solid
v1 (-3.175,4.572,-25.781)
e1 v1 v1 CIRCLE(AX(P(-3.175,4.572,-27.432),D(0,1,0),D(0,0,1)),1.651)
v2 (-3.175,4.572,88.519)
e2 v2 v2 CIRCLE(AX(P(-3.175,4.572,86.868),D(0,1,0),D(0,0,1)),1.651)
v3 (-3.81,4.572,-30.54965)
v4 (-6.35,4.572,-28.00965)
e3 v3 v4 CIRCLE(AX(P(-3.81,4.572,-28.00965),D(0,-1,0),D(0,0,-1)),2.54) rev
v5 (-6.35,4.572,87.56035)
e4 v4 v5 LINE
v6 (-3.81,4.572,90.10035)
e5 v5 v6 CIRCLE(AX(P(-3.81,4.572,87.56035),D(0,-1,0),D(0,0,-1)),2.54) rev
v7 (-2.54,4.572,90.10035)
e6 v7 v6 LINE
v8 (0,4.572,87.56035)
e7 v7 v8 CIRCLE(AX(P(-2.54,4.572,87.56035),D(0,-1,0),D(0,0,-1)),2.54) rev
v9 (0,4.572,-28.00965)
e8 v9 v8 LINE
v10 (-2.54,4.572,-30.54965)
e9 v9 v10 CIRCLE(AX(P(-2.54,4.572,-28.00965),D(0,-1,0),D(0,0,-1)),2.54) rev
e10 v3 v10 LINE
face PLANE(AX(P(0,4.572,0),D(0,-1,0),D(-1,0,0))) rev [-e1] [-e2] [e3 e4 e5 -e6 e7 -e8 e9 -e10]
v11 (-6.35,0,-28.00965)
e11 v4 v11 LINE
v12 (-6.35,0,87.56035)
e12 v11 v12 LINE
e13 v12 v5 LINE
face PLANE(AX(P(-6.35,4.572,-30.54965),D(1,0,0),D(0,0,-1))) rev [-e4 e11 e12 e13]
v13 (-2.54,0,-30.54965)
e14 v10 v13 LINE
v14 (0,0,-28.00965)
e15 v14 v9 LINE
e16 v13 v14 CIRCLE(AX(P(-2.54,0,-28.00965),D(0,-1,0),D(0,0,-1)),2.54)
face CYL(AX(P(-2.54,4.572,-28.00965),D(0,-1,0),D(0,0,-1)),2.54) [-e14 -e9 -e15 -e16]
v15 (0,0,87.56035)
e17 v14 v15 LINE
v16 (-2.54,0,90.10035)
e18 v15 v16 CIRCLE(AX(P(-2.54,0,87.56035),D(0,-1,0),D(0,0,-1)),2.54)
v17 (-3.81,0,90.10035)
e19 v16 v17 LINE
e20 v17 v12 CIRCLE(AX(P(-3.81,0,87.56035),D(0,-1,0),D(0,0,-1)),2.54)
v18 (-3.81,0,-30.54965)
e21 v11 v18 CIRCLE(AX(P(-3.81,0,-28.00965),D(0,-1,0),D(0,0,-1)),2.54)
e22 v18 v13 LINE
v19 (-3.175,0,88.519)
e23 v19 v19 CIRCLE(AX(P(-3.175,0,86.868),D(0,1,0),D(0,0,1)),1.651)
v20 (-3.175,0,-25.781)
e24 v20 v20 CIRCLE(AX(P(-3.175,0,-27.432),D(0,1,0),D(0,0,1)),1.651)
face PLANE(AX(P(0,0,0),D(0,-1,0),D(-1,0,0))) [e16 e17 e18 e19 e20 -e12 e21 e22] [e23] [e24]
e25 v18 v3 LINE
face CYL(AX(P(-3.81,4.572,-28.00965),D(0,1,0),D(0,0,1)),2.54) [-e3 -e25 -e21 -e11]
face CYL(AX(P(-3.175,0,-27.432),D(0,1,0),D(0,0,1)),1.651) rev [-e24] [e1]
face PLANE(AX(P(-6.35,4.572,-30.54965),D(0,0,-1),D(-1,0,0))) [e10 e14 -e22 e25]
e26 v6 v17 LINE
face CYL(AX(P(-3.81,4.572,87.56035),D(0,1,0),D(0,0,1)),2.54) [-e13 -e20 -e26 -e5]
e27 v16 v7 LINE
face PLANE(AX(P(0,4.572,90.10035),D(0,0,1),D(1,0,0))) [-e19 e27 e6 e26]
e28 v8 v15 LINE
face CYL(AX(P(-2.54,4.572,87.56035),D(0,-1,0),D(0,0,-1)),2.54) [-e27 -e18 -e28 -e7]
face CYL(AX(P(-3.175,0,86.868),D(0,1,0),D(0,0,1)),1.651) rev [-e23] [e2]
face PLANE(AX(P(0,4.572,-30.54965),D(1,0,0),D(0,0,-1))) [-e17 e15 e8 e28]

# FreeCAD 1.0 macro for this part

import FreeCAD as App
import Part
import Sketcher

V = App.Vector
Q = App.Units.Quantity


def edges_at(feature, points):
    """Names of the edges that pass closest to the given points."""
    edges = feature.Shape.Edges
    near = lambda p: min(range(len(edges)), key=lambda i: edges[i].distToShape(Part.Vertex(*p))[0])
    return sorted({f"Edge{near(p) + 1}" for p in points})


def add_polygon(sketch, points):
    """Adds a closed chain of lines whose ends are joined by coincident constraints."""
    first, n = sketch.GeometryCount, len(points)
    for a, b in zip(points, points[1:] + points[:1]):
        sketch.addGeometry(Part.LineSegment(App.Vector(*a, 0), App.Vector(*b, 0)), False)
    for i in range(n):
        sketch.addConstraint(Sketcher.Constraint("Coincident", first + i, 2, first + (i + 1) % n, 1))

doc = App.newDocument("Part")
body = doc.addObject("PartDesign::Body", "Body")

# Sketch on XZ plane
sketch1 = body.newObject("Sketcher::SketchObject", "Sketch")
sketch1.AttachmentSupport = (doc.getObject("XZ_Plane"), [""])
sketch1.MapMode = "FlatFace"
add_polygon(sketch1, [(-6, -31), (-6, 90), (0, 90), (0, -31)])  # lines 0-3
sketch1.addConstraint([
    Sketcher.Constraint("Vertical", 0),
    Sketcher.Constraint("Horizontal", 1),
    Sketcher.Constraint("Vertical", 2),
    Sketcher.Constraint("Horizontal", 3),
    Sketcher.Constraint("PointOnObject", 1, 2, -2),
    Sketcher.Constraint("DistanceX", 1, 1, 1, 2, Q("0.25 in")),
    Sketcher.Constraint("DistanceY", 0, 1, 0, 2, Q("4.75 in")),
    Sketcher.Constraint("DistanceY", -1, 1, 0, 2, 90.10035),
])
pad1 = body.newObject("PartDesign::Pad", "Pad")
pad1.Profile = sketch1
pad1.Length = Q("0.18 in")
pad1.Reversed = True

# Sketch on XZ plane
sketch2 = body.newObject("Sketcher::SketchObject", "Sketch001")
sketch2.AttachmentSupport = (doc.getObject("XZ_Plane"), [""])
sketch2.MapMode = "FlatFace"
sketch2.AttachmentOffset = App.Placement(V(0, 0, -0.18 * 25.4), App.Rotation())
sketch2.addGeometry(Part.Circle(V(-3.2, -27.4, 0), V(0, 0, 1), 1.7), False)
sketch2.addConstraint([
    Sketcher.Constraint("Diameter", 0, Q("0.13 in")),
    Sketcher.Constraint("DistanceY", 0, 3, -1, 1, Q("1.08 in")),
    Sketcher.Constraint("DistanceX", 0, 3, -1, 1, Q("0.125 in")),
])
pocket1 = body.newObject("PartDesign::Pocket", "Pocket")
pocket1.Profile = sketch2
pocket1.Length = Q("0.18 in")
pocket1.Reversed = True
doc.recompute()

linearpattern = body.newObject("PartDesign::LinearPattern", "LinearPattern")
linearpattern.Originals = [pocket1]
linearpattern.Direction = (doc.getObject("Z_Axis"), [""])
linearpattern.Mode = "offset"
linearpattern.Offset = Q("4.5 in")
linearpattern.Occurrences = 6
body.Tip = linearpattern
doc.recompute()

fillet = body.newObject("PartDesign::Fillet", "Fillet")
fillet.Base = (linearpattern, edges_at(linearpattern, [
    (-6.35, 2.286, -30.55),
    (0, 2.286, -30.55),
    (0, 2.286, 90.1),
    (-6.35, 2.286, 90.1),
]))
fillet.Radius = Q("0.1 in")

doc.recompute()
